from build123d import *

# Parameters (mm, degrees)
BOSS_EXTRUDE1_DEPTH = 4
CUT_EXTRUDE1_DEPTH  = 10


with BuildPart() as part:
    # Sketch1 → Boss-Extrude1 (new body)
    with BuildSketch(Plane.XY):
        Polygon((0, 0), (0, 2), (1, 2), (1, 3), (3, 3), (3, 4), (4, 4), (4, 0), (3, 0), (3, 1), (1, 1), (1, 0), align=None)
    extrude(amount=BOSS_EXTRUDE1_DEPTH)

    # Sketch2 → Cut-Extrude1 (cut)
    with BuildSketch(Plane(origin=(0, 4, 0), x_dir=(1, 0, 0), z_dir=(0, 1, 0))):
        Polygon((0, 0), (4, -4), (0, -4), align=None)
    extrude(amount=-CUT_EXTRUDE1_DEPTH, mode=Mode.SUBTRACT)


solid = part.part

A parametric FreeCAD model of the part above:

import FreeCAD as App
import Part
import Sketcher

V = App.Vector
Q = App.Units.Quantity


def add_polygon(sketch, points):
    """Adds a closed chain of lines whose ends are joined by coincident constraints."""
    first, n = sketch.GeometryCount, len(points)
    for a, b in zip(points, points[1:] + points[:1]):
        sketch.addGeometry(Part.LineSegment(App.Vector(*a, 0), App.Vector(*b, 0)), False)
    for i in range(n):
        sketch.addConstraint(Sketcher.Constraint("Coincident", first + i, 2, first + (i + 1) % n, 1))

doc = App.newDocument("Part")
body = doc.addObject("PartDesign::Body", "Body")

# Sketch on XY plane
sketch1 = body.newObject("Sketcher::SketchObject", "Sketch")
sketch1.AttachmentSupport = (doc.getObject("XY_Plane"), [""])
sketch1.MapMode = "FlatFace"
add_polygon(sketch1, [(0, 2), (0, 0), (1, 0), (1, 1), (3, 1), (3, 0), (4, 0), (4, 4), (3, 4), (3, 3), (1, 3), (1, 2)])  # lines 0-11
sketch1.addConstraint([
    Sketcher.Constraint("Vertical", 0),
    Sketcher.Constraint("Horizontal", 1),
    Sketcher.Constraint("Vertical", 2),
    Sketcher.Constraint("Horizontal", 3),
    Sketcher.Constraint("Vertical", 4),
    Sketcher.Constraint("Horizontal", 5),
    Sketcher.Constraint("Vertical", 6),
    Sketcher.Constraint("Horizontal", 7),
    Sketcher.Constraint("Vertical", 8),
    Sketcher.Constraint("Horizontal", 9),
    Sketcher.Constraint("Vertical", 10),
    Sketcher.Constraint("Horizontal", 11),
    Sketcher.Constraint("Coincident", 0, 2, -1, 1),
    Sketcher.Constraint("PointOnObject", 4, 2, -1),
    Sketcher.Constraint("Vertical", 4, 2, 7, 2),
    Sketcher.Constraint("Vertical", 2, 2, 9, 2),
    Sketcher.Constraint("Equal", 1, 5),
    Sketcher.Constraint("Equal", 9, 0),
    Sketcher.Constraint("Equal", 11, 2),
    Sketcher.Constraint("Equal", 4, 8),
    Sketcher.Constraint("Equal", 8, 10),
    Sketcher.Constraint("DistanceX", 1, 1, 1, 2, Q("1 mm")),
    Sketcher.Constraint("DistanceX", 3, 1, 3, 2, Q("2 mm")),
])
pad1 = body.newObject("PartDesign::Pad", "Pad")
pad1.Profile = sketch1
pad1.Length = 4

# Sketch on XZ plane
sketch2 = body.newObject("Sketcher::SketchObject", "Sketch001")
sketch2.AttachmentSupport = (doc.getObject("XZ_Plane"), [""])
sketch2.MapMode = "FlatFace"
sketch2.AttachmentOffset = App.Placement(V(0, 0, -4), App.Rotation())
add_polygon(sketch2, [(4, 4), (0, 0), (0, 4)])  # lines 0-2
sketch2.addConstraint([
    Sketcher.Constraint("Vertical", 1),
    Sketcher.Constraint("Horizontal", 2),
    Sketcher.Constraint("Coincident", 0, 2, -1, 1),
    Sketcher.Constraint("Equal", 2, 1),
    Sketcher.Constraint("DistanceX", 2, 1, 2, 2, Q("4 mm")),
])
pocket1 = body.newObject("PartDesign::Pocket", "Pocket")
pocket1.Profile = sketch2
pocket1.Length = 10
pocket1.Reversed = True

doc.recompute()
